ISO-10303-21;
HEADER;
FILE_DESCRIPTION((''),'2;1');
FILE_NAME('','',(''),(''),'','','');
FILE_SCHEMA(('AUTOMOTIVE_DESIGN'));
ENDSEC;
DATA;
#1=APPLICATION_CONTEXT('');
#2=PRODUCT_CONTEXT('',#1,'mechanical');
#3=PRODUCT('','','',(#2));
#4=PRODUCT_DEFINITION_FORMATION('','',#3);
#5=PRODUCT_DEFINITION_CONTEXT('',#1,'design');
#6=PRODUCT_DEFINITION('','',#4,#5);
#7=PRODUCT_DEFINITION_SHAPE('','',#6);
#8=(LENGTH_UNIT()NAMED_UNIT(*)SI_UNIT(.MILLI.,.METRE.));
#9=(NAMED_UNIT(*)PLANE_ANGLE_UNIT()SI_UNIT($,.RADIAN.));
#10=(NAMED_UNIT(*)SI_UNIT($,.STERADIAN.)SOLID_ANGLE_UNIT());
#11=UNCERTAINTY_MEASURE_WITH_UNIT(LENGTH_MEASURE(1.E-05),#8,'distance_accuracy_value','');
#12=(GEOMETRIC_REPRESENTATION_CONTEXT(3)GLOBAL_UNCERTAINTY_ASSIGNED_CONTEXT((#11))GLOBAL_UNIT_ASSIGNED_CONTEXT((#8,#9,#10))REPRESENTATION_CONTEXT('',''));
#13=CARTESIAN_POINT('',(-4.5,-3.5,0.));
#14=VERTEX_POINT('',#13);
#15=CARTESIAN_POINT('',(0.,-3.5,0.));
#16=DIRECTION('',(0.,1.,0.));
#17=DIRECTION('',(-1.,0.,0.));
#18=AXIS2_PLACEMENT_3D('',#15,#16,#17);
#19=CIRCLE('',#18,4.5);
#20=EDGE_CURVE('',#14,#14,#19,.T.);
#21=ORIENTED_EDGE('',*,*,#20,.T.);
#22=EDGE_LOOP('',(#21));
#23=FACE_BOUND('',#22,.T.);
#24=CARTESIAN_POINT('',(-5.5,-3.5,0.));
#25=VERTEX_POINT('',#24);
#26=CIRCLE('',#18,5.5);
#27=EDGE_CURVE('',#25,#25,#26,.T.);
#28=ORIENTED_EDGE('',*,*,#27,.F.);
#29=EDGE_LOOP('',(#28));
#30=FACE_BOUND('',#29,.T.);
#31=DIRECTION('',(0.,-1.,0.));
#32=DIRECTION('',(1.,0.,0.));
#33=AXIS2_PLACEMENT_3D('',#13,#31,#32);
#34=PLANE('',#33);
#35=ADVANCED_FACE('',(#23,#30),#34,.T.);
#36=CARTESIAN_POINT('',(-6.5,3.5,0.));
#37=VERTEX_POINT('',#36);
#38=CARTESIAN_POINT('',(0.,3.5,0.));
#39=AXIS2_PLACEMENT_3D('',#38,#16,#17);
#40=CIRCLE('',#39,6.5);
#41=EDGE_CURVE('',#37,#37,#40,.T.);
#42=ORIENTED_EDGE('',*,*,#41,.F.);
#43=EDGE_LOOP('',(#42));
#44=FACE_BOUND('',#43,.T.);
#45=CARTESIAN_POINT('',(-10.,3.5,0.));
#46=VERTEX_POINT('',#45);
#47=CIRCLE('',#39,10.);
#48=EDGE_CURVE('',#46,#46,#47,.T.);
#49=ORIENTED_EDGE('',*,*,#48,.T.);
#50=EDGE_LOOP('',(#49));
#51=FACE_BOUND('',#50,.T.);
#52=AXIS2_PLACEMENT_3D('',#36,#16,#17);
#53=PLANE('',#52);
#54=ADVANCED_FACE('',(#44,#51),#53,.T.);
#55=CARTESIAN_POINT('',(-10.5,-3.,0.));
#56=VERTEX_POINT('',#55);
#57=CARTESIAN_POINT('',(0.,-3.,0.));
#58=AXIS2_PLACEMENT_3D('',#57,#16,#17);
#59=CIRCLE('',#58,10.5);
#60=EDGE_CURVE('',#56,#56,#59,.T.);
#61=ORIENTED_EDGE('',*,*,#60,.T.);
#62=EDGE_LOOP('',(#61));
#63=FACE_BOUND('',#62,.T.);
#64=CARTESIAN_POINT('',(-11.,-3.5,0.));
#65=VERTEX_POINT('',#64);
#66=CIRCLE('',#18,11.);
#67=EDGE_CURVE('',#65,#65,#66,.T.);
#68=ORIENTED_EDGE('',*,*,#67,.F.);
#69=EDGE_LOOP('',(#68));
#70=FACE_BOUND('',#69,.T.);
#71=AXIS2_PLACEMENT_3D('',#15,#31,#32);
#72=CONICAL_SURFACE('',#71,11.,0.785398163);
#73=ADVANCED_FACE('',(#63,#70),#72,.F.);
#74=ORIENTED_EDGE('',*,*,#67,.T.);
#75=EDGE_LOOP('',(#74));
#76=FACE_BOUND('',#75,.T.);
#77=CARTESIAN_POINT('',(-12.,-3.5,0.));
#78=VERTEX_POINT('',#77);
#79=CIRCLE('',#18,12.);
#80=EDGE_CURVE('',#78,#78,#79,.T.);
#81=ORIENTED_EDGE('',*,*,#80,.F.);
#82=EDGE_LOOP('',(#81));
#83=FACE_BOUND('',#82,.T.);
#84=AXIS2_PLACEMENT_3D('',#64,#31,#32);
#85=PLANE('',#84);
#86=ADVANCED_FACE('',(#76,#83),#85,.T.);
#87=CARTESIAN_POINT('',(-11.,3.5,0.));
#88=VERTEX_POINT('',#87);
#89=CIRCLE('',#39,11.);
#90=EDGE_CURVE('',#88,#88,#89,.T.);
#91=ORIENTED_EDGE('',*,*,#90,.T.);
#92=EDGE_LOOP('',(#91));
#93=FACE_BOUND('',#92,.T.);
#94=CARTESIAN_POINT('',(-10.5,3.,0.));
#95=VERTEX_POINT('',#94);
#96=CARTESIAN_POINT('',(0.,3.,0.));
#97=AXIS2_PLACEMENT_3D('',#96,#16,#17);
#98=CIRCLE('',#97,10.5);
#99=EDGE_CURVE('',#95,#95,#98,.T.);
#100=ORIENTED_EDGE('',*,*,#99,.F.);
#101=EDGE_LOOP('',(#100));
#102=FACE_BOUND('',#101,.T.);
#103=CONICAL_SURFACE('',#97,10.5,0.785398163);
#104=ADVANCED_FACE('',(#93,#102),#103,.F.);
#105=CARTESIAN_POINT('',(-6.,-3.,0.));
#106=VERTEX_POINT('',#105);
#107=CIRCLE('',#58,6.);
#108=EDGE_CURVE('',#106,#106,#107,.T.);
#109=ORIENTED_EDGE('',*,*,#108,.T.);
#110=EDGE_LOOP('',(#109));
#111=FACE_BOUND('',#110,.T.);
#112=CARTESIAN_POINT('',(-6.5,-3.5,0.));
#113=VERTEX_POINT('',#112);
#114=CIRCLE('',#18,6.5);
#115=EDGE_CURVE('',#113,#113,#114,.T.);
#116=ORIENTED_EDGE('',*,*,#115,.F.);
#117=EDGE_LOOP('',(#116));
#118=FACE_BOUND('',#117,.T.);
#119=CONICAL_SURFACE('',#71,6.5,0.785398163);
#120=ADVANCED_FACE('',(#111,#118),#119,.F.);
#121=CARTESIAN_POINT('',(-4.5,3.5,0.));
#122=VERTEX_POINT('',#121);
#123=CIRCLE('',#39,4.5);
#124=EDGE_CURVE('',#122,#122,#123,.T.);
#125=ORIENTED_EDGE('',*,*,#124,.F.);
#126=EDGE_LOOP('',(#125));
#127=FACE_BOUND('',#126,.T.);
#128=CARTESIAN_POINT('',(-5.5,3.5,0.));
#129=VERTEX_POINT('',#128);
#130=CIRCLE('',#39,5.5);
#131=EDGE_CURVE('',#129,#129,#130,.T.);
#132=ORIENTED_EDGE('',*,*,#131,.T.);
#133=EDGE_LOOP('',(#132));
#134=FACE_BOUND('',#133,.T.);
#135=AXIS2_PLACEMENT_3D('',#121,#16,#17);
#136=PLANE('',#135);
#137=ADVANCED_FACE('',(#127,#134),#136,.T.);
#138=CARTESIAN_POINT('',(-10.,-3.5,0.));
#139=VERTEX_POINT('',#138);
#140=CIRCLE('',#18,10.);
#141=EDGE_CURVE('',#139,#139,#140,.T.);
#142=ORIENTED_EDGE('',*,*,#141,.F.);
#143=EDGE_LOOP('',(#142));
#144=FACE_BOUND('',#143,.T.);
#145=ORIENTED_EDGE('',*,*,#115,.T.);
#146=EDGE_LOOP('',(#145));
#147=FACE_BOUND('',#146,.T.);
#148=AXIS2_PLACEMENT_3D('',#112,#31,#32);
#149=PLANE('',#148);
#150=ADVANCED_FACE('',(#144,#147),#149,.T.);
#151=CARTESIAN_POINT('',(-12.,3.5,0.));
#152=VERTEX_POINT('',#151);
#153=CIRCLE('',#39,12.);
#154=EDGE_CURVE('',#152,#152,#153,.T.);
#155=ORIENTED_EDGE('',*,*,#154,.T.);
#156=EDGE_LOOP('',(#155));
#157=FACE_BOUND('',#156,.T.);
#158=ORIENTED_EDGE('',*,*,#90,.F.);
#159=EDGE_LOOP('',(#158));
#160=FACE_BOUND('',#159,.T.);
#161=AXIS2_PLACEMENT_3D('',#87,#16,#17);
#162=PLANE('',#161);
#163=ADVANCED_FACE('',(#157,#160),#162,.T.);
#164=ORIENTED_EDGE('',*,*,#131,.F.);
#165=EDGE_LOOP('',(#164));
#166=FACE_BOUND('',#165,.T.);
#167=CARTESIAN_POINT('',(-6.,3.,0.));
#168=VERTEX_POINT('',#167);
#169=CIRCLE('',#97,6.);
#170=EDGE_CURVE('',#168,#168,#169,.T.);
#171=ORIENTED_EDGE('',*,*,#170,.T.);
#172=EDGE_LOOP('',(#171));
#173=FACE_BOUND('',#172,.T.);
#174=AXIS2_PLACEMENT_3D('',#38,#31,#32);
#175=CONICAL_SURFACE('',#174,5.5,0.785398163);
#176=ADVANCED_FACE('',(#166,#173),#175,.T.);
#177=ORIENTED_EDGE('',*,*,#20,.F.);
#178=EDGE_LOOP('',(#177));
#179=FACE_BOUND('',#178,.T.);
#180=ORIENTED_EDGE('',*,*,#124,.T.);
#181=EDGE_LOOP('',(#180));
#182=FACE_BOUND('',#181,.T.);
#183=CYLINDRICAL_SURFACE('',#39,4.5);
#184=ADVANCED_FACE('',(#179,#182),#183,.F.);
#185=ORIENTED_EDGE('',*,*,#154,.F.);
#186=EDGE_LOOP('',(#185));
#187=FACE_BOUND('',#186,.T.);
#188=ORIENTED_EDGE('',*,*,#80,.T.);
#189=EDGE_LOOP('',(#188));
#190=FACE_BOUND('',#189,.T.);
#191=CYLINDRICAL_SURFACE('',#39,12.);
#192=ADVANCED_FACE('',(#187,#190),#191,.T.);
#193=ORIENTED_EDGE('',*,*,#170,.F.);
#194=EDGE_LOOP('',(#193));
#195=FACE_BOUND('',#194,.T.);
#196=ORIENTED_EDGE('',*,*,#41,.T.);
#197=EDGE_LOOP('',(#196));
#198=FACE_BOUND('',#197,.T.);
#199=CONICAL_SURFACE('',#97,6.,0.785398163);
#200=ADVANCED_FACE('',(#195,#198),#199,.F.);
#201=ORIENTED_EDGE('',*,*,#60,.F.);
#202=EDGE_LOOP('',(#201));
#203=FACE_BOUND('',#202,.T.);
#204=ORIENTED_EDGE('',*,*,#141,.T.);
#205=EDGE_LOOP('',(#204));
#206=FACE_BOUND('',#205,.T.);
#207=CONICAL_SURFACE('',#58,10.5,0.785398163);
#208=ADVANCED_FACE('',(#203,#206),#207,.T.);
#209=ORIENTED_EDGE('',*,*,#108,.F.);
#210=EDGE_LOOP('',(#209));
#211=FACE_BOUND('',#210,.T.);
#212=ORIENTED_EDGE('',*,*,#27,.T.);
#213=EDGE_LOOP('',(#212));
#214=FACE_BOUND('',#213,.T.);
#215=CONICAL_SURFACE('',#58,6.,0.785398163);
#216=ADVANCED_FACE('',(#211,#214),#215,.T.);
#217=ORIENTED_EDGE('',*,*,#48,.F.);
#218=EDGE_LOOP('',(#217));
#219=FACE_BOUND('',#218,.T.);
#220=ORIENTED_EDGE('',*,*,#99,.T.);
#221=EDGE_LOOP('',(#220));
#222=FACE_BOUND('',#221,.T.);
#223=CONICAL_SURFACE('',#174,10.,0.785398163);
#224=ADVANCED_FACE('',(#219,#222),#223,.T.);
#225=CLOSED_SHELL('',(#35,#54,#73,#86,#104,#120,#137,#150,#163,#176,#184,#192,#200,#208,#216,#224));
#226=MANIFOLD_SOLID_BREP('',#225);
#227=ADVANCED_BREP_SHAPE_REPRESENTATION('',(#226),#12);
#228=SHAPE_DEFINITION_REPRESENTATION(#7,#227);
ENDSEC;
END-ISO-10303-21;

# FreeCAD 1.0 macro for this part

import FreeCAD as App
import Part
import Sketcher
from FreeCAD import Vector

doc = App.newDocument("Part")
params = doc.addObject("Spreadsheet::Sheet", "Params")
for row, (alias, value) in enumerate([
    ("sketch1_width", "1 mm"),
    ("sketch1_height", "7 mm"),
    ("sketch1_width2", "3.5 mm"),
    ("revolution_angle", "360 deg"),
], start=1):
    params.set(f"A{row}", alias)
    params.set(f"B{row}", "=" + value)
    params.setAlias(f"B{row}", alias)

body = doc.addObject("PartDesign::Body", "Body")

# Sketch on XY plane
sketch1 = body.newObject("Sketcher::SketchObject", "Sketch")
sketch1.AttachmentSupport = (doc.getObject("XY_Plane"), [""])
sketch1.MapMode = "FlatFace"
sketch1.addGeometry(Part.LineSegment(Vector(-4.5, 3.5, 0), Vector(-5.5, 3.5, 0)), False)
sketch1.addGeometry(Part.LineSegment(Vector(-5.5, 3.5, 0), Vector(-6, 3, 0)), False)
sketch1.addGeometry(Part.LineSegment(Vector(-6, 3, 0), Vector(-6.5, 3.5, 0)), False)
sketch1.addGeometry(Part.LineSegment(Vector(-6.5, 3.5, 0), Vector(-10, 3.5, 0)), False)
sketch1.addGeometry(Part.LineSegment(Vector(-10, 3.5, 0), Vector(-10.5, 3, 0)), False)
sketch1.addGeometry(Part.LineSegment(Vector(-10.5, 3, 0), Vector(-11, 3.5, 0)), False)
sketch1.addGeometry(Part.LineSegment(Vector(-11, 3.5, 0), Vector(-12, 3.5, 0)), False)
sketch1.addGeometry(Part.LineSegment(Vector(-12, 3.5, 0), Vector(-12, -3.5, 0)), False)
sketch1.addGeometry(Part.LineSegment(Vector(-12, -3.5, 0), Vector(-11, -3.5, 0)), False)
sketch1.addGeometry(Part.LineSegment(Vector(-11, -3.5, 0), Vector(-10.5, -3, 0)), False)
sketch1.addGeometry(Part.LineSegment(Vector(-10.5, -3, 0), Vector(-10, -3.5, 0)), False)
sketch1.addGeometry(Part.LineSegment(Vector(-10, -3.5, 0), Vector(-6.5, -3.5, 0)), False)
sketch1.addGeometry(Part.LineSegment(Vector(-6.5, -3.5, 0), Vector(-6, -3, 0)), False)
sketch1.addGeometry(Part.LineSegment(Vector(-6, -3, 0), Vector(-5.5, -3.5, 0)), False)
sketch1.addGeometry(Part.LineSegment(Vector(-5.5, -3.5, 0), Vector(-4.5, -3.5, 0)), False)
sketch1.addGeometry(Part.LineSegment(Vector(-4.5, -3.5, 0), Vector(-4.5, 3.5, 0)), False)
sketch1.addConstraint(Sketcher.Constraint("Coincident", 0, 2, 1, 1))
sketch1.addConstraint(Sketcher.Constraint("Coincident", 1, 2, 2, 1))
sketch1.addConstraint(Sketcher.Constraint("Coincident", 2, 2, 3, 1))
sketch1.addConstraint(Sketcher.Constraint("Coincident", 3, 2, 4, 1))
sketch1.addConstraint(Sketcher.Constraint("Coincident", 4, 2, 5, 1))
sketch1.addConstraint(Sketcher.Constraint("Coincident", 5, 2, 6, 1))
sketch1.addConstraint(Sketcher.Constraint("Coincident", 6, 2, 7, 1))
sketch1.addConstraint(Sketcher.Constraint("Coincident", 7, 2, 8, 1))
sketch1.addConstraint(Sketcher.Constraint("Coincident", 8, 2, 9, 1))
sketch1.addConstraint(Sketcher.Constraint("Coincident", 9, 2, 10, 1))
sketch1.addConstraint(Sketcher.Constraint("Coincident", 10, 2, 11, 1))
sketch1.addConstraint(Sketcher.Constraint("Coincident", 11, 2, 12, 1))
sketch1.addConstraint(Sketcher.Constraint("Coincident", 12, 2, 13, 1))
sketch1.addConstraint(Sketcher.Constraint("Coincident", 13, 2, 14, 1))
sketch1.addConstraint(Sketcher.Constraint("Coincident", 14, 2, 15, 1))
sketch1.addConstraint(Sketcher.Constraint("Coincident", 15, 2, 0, 1))
sketch1.addConstraint(Sketcher.Constraint("Horizontal", 0))
sketch1.addConstraint(Sketcher.Constraint("Horizontal", 3))
sketch1.addConstraint(Sketcher.Constraint("Horizontal", 6))
sketch1.addConstraint(Sketcher.Constraint("Vertical", 7))
sketch1.addConstraint(Sketcher.Constraint("Horizontal", 8))
sketch1.addConstraint(Sketcher.Constraint("Horizontal", 11))
sketch1.addConstraint(Sketcher.Constraint("Horizontal", 14))
sketch1.addConstraint(Sketcher.Constraint("Vertical", 15))
sketch1.addConstraint(Sketcher.Constraint("Symmetric", 5, 2, 8, 2, -1))
sketch1.addConstraint(Sketcher.Constraint("Symmetric", 4, 2, 9, 2, -1))
sketch1.addConstraint(Sketcher.Constraint("Symmetric", 3, 2, 10, 2, -1))
sketch1.addConstraint(Sketcher.Constraint("Symmetric", 1, 2, 12, 2, -1))
sketch1.addConstraint(Sketcher.Constraint("Symmetric", 0, 2, 13, 2, -1))
sketch1.addConstraint(Sketcher.Constraint("Perpendicular", 1, 2))
sketch1.addConstraint(Sketcher.Constraint("Perpendicular", 2, 4))
sketch1.addConstraint(Sketcher.Constraint("Perpendicular", 4, 5))
sketch1.addConstraint(Sketcher.Constraint("Perpendicular", 5, 9))
sketch1.addConstraint(Sketcher.Constraint("Perpendicular", 10, 12))
sketch1.addConstraint(Sketcher.Constraint("Horizontal", 0, 2, 2, 2))
sketch1.addConstraint(Sketcher.Constraint("Horizontal", 1, 2, 4, 2))
sketch1.addConstraint(Sketcher.Constraint("Horizontal", 3, 2, 5, 2))
sketch1.addConstraint(Sketcher.Constraint("Equal", 0, 6))
sketch1.addConstraint(Sketcher.Constraint("DistanceX", 0, 2, 0, 1, 1.0))
sketch1.addConstraint(Sketcher.Constraint("DistanceY", 7, 2, 7, 1, 7.0))
sketch1.addConstraint(Sketcher.Constraint("DistanceX", 3, 2, 3, 1, 3.5))
sketch1.addConstraint(Sketcher.Constraint("DistanceX", 1, 2, -1, 1, 6.0))
sketch1.addConstraint(Sketcher.Constraint("DistanceY", -1, 1, 1, 2, 3.0))
sketch1.setExpression("Constraints[38]", "Params.sketch1_width")
sketch1.setExpression("Constraints[39]", "Params.sketch1_height")
sketch1.setExpression("Constraints[40]", "Params.sketch1_width2")
revolution = body.newObject("PartDesign::Revolution", "Revolution")
revolution.Profile = sketch1
revolution.ReferenceAxis = (sketch1, ["V_Axis"])
revolution.setExpression("Angle", "Params.revolution_angle")

doc.recompute()
